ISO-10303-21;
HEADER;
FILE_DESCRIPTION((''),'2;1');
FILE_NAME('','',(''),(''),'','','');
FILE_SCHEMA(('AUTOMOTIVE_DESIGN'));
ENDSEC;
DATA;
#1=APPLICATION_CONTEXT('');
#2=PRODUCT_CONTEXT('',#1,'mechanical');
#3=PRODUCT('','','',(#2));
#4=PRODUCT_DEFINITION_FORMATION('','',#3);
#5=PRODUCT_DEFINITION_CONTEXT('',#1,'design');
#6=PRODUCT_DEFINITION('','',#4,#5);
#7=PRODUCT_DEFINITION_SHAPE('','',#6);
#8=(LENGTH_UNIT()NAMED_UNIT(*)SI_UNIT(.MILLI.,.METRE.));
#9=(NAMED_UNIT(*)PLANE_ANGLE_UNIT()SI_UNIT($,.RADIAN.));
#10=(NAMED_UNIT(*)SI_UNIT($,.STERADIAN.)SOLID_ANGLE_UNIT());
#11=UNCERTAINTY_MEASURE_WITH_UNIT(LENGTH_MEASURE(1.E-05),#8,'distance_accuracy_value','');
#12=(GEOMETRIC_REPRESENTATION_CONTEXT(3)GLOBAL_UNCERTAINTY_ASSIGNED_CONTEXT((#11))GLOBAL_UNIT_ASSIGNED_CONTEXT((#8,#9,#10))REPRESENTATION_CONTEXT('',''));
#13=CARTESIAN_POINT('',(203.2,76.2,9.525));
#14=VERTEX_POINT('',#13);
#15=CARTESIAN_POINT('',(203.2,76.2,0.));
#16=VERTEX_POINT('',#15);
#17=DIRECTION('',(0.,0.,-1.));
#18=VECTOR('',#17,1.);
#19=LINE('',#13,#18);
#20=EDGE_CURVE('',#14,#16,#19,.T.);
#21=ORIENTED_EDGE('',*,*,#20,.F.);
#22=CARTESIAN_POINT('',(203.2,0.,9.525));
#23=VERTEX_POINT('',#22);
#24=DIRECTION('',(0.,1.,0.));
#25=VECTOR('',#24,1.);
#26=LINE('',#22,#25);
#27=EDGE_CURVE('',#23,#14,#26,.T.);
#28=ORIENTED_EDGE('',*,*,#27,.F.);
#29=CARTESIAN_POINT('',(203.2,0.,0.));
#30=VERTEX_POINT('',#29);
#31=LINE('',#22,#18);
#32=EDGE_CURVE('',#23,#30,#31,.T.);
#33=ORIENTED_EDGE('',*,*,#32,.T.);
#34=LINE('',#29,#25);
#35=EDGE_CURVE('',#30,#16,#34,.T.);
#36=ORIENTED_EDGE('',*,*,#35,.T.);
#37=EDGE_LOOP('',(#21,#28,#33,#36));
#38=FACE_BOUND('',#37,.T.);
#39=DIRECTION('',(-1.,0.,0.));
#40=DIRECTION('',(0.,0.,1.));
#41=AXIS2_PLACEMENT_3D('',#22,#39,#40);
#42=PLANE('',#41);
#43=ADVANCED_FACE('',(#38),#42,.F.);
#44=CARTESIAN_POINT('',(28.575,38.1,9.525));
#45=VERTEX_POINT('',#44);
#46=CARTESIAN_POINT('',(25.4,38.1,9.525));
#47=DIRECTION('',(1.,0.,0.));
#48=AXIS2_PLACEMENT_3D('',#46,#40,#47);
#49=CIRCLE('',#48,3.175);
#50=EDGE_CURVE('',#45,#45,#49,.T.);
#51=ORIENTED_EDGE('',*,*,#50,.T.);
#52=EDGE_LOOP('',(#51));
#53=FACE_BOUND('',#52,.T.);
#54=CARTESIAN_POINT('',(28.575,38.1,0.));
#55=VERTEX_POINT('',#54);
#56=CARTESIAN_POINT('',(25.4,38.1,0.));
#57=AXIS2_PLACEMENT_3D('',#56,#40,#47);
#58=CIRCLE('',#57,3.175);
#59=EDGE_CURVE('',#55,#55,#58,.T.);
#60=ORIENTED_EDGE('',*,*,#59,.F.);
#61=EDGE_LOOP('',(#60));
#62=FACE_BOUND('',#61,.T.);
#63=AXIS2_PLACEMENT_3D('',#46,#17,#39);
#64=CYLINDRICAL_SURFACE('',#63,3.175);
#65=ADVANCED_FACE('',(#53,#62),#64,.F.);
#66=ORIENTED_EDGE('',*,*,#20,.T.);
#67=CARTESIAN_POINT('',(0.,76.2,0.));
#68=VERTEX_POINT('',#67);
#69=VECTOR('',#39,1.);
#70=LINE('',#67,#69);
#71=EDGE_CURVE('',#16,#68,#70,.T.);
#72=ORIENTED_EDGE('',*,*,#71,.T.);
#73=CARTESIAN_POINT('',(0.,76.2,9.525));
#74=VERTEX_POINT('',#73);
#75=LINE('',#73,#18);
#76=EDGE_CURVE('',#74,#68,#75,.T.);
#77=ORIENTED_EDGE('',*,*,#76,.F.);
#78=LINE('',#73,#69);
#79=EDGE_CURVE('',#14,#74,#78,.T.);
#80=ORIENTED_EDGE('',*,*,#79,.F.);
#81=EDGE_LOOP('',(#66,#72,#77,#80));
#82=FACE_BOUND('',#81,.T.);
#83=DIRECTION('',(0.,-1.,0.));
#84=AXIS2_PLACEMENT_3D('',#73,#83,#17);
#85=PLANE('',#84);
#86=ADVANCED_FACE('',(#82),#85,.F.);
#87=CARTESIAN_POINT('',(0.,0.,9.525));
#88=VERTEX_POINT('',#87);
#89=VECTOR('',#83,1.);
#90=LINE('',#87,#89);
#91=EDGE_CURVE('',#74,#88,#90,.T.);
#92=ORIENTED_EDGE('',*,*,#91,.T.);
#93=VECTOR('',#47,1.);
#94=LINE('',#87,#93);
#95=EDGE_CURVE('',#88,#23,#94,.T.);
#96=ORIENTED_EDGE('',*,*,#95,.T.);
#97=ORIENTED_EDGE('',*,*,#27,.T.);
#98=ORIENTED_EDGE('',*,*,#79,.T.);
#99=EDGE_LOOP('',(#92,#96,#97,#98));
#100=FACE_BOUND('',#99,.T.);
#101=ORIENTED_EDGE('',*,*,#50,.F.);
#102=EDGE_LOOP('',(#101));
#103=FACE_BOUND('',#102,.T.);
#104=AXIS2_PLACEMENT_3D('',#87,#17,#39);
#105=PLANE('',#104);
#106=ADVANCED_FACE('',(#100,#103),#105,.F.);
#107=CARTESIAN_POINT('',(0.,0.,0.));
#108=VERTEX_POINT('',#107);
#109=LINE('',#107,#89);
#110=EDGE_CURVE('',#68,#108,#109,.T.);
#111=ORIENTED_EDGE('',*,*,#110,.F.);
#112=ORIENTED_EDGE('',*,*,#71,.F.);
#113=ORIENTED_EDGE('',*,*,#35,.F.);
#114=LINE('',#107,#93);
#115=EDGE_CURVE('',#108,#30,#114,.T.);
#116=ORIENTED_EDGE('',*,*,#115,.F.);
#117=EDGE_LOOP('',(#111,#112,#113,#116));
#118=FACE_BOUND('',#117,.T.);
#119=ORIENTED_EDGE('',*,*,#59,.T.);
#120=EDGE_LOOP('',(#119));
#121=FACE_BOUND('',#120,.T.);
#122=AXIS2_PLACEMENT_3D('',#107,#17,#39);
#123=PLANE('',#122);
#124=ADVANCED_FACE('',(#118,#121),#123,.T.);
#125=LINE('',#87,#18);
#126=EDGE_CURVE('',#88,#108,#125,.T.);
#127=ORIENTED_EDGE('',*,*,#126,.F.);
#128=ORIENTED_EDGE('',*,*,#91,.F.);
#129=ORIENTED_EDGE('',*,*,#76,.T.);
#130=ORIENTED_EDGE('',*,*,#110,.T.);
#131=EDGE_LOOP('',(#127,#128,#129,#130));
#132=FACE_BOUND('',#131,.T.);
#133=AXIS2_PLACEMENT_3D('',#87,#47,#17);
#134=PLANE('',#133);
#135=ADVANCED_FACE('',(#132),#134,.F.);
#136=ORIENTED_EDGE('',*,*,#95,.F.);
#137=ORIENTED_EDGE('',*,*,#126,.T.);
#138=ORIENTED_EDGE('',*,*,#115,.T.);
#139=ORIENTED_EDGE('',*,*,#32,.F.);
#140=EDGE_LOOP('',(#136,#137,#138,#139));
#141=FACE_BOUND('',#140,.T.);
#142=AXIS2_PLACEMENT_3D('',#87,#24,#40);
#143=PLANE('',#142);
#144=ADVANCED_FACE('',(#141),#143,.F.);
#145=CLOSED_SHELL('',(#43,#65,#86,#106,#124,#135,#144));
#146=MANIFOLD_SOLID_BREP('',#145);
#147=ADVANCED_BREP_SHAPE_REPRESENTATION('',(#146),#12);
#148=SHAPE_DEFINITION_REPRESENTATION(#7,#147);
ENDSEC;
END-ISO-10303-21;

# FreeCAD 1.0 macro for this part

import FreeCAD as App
import Part
import Sketcher

V = App.Vector
Q = App.Units.Quantity


def add_polygon(sketch, points):
    """Adds a closed chain of lines whose ends are joined by coincident constraints."""
    first, n = sketch.GeometryCount, len(points)
    for a, b in zip(points, points[1:] + points[:1]):
        sketch.addGeometry(Part.LineSegment(App.Vector(*a, 0), App.Vector(*b, 0)), False)
    for i in range(n):
        sketch.addConstraint(Sketcher.Constraint("Coincident", first + i, 2, first + (i + 1) % n, 1))

doc = App.newDocument("Part")
body = doc.addObject("PartDesign::Body", "Body")

# Sketch on XY plane
sketch1 = body.newObject("Sketcher::SketchObject", "Sketch")
sketch1.AttachmentSupport = (doc.getObject("XY_Plane"), [""])
sketch1.MapMode = "FlatFace"
add_polygon(sketch1, [(0, 76), (0, 0), (203, 0), (203, 76)])  # lines 0-3
sketch1.addConstraint(Sketcher.Constraint("Vertical", 0))
sketch1.addConstraint(Sketcher.Constraint("Horizontal", 1))
sketch1.addConstraint(Sketcher.Constraint("Vertical", 2))
sketch1.addConstraint(Sketcher.Constraint("Horizontal", 3))
sketch1.addConstraint(Sketcher.Constraint("Coincident", 0, 2, -1, 1))
sketch1.addConstraint(Sketcher.Constraint("DistanceX", 1, 1, 1, 2, Q("8 in")))
sketch1.addConstraint(Sketcher.Constraint("DistanceY", 0, 2, 0, 1, Q("3 in")))
pad1 = body.newObject("PartDesign::Pad", "Pad")
pad1.Profile = sketch1
pad1.Length = Q("0.375 in")

# Sketch on XY plane
sketch2 = body.newObject("Sketcher::SketchObject", "Sketch001")
sketch2.AttachmentSupport = (doc.getObject("XY_Plane"), [""])
sketch2.MapMode = "FlatFace"
sketch2.addGeometry(Part.Circle(V(25.4, 38.1, 0), V(0, 0, 1), 3.2), False)
sketch2.addConstraint(Sketcher.Constraint("Diameter", 0, Q("0.25 in")))
sketch2.addConstraint(Sketcher.Constraint("DistanceX", -1, 1, 0, 3, Q("1 in")))
sketch2.addConstraint(Sketcher.Constraint("DistanceY", -1, 1, 0, 3, Q("1.5 in")))
pocket1 = body.newObject("PartDesign::Pocket", "Pocket")
pocket1.Profile = sketch2
pocket1.Type = "ThroughAll"
pocket1.Reversed = True

doc.recompute()
